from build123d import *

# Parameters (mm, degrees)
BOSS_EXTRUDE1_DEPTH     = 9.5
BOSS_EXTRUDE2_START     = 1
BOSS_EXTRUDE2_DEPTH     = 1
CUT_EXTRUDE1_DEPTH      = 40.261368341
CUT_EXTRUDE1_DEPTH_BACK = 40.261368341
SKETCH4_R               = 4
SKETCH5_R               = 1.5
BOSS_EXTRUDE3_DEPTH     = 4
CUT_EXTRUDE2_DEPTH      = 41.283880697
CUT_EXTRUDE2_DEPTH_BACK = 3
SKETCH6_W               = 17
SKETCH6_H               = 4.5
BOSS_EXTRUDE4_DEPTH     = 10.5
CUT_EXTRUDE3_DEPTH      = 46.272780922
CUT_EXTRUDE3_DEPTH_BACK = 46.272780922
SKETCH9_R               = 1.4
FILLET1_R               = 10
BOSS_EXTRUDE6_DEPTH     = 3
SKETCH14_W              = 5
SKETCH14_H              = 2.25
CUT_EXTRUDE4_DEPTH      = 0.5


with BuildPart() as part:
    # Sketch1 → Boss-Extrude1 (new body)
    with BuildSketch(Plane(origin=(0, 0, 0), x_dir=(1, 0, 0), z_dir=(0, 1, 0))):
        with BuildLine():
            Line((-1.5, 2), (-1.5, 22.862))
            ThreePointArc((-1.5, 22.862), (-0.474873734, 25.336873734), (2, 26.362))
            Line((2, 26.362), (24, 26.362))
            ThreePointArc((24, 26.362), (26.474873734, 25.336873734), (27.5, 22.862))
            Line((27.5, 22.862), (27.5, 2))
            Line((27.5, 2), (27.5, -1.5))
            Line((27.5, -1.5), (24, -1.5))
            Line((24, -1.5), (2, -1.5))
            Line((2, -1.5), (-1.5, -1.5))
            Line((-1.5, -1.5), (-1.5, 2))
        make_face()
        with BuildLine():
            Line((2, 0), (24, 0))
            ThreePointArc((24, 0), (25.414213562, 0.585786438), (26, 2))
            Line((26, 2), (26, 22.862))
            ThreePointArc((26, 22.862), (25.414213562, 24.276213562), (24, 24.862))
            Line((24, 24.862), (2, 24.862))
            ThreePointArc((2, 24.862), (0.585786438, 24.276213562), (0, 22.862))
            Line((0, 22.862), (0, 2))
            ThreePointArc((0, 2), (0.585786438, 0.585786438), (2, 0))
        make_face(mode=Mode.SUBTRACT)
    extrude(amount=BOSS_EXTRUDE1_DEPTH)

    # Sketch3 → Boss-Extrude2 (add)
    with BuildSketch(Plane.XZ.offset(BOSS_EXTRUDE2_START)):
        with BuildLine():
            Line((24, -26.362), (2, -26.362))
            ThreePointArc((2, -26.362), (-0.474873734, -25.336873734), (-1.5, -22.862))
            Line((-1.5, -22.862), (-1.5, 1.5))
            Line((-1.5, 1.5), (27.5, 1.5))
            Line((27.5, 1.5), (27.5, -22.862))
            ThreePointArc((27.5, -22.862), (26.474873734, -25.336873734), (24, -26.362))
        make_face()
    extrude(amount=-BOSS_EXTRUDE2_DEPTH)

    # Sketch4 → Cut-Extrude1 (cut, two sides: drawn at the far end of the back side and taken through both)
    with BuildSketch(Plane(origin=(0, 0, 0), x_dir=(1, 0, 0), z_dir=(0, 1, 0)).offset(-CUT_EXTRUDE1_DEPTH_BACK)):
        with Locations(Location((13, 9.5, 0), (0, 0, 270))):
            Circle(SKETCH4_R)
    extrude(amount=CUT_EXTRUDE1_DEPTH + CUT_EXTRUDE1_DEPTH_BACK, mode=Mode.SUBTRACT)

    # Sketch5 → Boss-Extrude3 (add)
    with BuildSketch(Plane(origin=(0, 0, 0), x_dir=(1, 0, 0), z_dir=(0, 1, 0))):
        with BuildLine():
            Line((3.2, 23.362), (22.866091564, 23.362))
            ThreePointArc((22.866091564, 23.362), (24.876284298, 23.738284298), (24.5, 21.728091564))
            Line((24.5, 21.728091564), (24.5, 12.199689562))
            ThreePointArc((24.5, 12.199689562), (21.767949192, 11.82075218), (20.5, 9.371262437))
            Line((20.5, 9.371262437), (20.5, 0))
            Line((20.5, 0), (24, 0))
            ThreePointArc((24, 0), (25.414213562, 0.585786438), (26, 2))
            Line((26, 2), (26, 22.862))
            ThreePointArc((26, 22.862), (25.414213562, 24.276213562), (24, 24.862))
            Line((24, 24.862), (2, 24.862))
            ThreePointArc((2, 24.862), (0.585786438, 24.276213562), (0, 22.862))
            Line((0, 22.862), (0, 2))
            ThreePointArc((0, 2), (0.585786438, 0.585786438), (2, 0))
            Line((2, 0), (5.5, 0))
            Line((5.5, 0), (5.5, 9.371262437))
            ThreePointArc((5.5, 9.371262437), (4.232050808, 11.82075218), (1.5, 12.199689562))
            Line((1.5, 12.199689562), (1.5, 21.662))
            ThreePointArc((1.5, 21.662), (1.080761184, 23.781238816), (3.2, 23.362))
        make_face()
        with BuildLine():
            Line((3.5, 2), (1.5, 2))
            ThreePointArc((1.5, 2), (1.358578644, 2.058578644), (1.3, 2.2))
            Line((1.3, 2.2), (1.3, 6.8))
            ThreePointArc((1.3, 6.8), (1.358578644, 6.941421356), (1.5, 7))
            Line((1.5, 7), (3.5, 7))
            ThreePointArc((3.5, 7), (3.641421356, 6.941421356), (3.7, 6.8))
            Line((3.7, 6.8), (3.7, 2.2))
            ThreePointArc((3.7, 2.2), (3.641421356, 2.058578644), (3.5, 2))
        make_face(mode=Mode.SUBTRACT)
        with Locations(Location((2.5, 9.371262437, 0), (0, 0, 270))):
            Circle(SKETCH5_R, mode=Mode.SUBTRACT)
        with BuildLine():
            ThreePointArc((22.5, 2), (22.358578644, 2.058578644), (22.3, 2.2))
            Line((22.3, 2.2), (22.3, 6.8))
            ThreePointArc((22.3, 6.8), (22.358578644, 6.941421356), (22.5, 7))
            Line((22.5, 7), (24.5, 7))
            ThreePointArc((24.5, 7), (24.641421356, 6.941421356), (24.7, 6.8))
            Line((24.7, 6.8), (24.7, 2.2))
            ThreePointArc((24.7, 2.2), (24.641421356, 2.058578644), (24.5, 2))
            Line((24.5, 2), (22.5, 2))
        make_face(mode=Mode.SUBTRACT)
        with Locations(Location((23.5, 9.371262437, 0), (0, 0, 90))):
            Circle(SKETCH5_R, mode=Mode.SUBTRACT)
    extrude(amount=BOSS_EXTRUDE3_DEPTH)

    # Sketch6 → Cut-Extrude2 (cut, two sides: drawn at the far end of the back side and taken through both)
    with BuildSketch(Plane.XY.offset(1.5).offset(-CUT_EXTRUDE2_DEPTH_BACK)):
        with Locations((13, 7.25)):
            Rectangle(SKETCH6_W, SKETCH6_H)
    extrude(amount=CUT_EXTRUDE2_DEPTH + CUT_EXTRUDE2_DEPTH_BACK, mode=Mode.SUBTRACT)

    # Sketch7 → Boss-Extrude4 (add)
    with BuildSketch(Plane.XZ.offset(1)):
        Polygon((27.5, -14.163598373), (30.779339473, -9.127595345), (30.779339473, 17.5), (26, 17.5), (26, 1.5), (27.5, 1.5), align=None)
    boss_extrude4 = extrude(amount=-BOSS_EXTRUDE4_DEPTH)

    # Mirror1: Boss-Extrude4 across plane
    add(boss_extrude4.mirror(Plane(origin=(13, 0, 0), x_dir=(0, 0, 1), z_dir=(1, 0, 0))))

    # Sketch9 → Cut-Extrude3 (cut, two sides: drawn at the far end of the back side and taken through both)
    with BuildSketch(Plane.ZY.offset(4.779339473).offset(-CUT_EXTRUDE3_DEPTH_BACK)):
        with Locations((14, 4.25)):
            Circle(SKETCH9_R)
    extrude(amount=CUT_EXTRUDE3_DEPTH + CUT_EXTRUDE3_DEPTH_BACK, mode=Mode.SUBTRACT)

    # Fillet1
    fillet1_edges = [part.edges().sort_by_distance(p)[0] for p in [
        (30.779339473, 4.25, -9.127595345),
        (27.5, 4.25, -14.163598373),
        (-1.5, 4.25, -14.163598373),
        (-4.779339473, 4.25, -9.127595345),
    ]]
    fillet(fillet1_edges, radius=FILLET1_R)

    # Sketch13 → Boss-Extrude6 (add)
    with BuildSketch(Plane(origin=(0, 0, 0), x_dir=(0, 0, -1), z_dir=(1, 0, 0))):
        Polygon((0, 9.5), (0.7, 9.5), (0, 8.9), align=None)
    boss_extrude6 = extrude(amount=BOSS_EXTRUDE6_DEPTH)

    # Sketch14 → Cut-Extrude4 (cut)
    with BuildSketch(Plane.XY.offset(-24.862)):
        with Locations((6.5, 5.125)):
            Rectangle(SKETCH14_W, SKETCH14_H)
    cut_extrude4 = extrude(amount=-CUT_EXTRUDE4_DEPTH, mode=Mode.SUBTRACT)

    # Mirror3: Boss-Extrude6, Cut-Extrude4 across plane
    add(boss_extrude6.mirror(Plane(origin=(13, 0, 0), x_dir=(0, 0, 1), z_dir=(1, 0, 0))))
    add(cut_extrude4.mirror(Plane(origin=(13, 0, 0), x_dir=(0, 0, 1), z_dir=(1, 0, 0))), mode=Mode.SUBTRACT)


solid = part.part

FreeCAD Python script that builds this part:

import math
import FreeCAD as App
import Part
import Sketcher
from FreeCAD import Vector
Q = App.Units.Quantity


def edges_at(feature, points):
    """Names of the edges that pass closest to the given points."""
    edges = feature.Shape.Edges
    near = lambda p: min(range(len(edges)), key=lambda i: edges[i].distToShape(Part.Vertex(*p))[0])
    return sorted({f"Edge{near(p) + 1}" for p in points})


def add_polygon(sketch, points):
    """Adds a closed chain of lines whose ends are joined by coincident constraints."""
    first, n = sketch.GeometryCount, len(points)
    for a, b in zip(points, points[1:] + points[:1]):
        sketch.addGeometry(Part.LineSegment(App.Vector(*a, 0), App.Vector(*b, 0)), False)
    for i in range(n):
        sketch.addConstraint(Sketcher.Constraint("Coincident", first + i, 2, first + (i + 1) % n, 1))

doc = App.newDocument("Part")
params = doc.addObject("Spreadsheet::Sheet", "Params")
for row, (alias, value) in enumerate([
    ("sketch1_radius", "2 mm"),
    ("sketch1_radius2", "3.5 mm"),
    ("sketch1_width", "29 mm"),
    ("pad1_length", "9.5 mm"),
    ("sketch2_radius", "3.5 mm"),
    ("sketch2_width", "22 mm"),
    ("pad2_length", "1 mm"),
    ("sketch3_diameter", "8 mm"),
    ("sketch4_diameter", "3 mm"),
    ("sketch4_radius", "3 mm"),
    ("sketch4_radius2", "2 mm"),
    ("sketch4_radius3", "1.3 mm"),
    ("sketch4_radius4", "0.2 mm"),
    ("pad3_length", "4 mm"),
    ("sketch5_width", "17 mm"),
    ("sketch5_height", "4.5 mm"),
    ("pocket2_length", "41.283881 mm"),
    ("pocket2_length2", "3 mm"),
    ("sketch6_height", "16 mm"),
    ("sketch6_width", "1.5 mm"),
    ("pad4_length", "10.5 mm"),
    ("sketch7_diameter", "2.8 mm"),
    ("fillet_radius", "10 mm"),
    ("sketch8_width", "0.6 mm"),
    ("sketch8_height", "0.7 mm"),
    ("pad5_length", "3 mm"),
    ("sketch9_width", "5 mm"),
    ("sketch9_height", "2.25 mm"),
    ("pocket4_length", "0.5 mm"),
], start=1):
    params.set(f"A{row}", alias)
    params.set(f"B{row}", "=" + value)
    params.setAlias(f"B{row}", alias)

body = doc.addObject("PartDesign::Body", "Body")

sketch1 = doc.addObject("Sketcher::SketchObject", "Sketch")
body.addObject(sketch1)
sketch1.AttachmentSupport = (doc.XZ_Plane, [""])
sketch1.MapMode = "FlatFace"
sketch1.addGeometry(Part.ArcOfCircle(Part.Circle(Vector(2, -22.862, 0), Vector(0, 0, 1), 3.5), math.radians(-180), math.radians(-90)), False)
sketch1.addGeometry(Part.LineSegment(Vector(-1.5, -22.862, 0), Vector(-1.5, 1.5, 0)), False)
sketch1.addGeometry(Part.LineSegment(Vector(-1.5, 1.5, 0), Vector(27.5, 1.5, 0)), False)
sketch1.addGeometry(Part.LineSegment(Vector(27.5, 1.5, 0), Vector(27.5, -22.862, 0)), False)
sketch1.addGeometry(Part.ArcOfCircle(Part.Circle(Vector(24, -22.862, 0), Vector(0, 0, 1), 3.5), math.radians(-90), math.radians(0)), False)
sketch1.addGeometry(Part.LineSegment(Vector(24, -26.362, 0), Vector(2, -26.362, 0)), False)
sketch1.addGeometry(Part.ArcOfCircle(Part.Circle(Vector(2, -2, 0), Vector(0, 0, 1), 2), math.radians(90), math.radians(180)), False)
sketch1.addGeometry(Part.LineSegment(Vector(0, -2, 0), Vector(0, -22.862, 0)), False)
sketch1.addGeometry(Part.ArcOfCircle(Part.Circle(Vector(2, -22.862, 0), Vector(0, 0, 1), 2), math.radians(-180), math.radians(-90)), False)
sketch1.addGeometry(Part.LineSegment(Vector(2, -24.862, 0), Vector(24, -24.862, 0)), False)
sketch1.addGeometry(Part.ArcOfCircle(Part.Circle(Vector(24, -22.862, 0), Vector(0, 0, 1), 2), math.radians(-90), math.radians(0)), False)
sketch1.addGeometry(Part.LineSegment(Vector(26, -22.862, 0), Vector(26, -2, 0)), False)
sketch1.addGeometry(Part.ArcOfCircle(Part.Circle(Vector(24, -2, 0), Vector(0, 0, 1), 2), math.radians(0), math.radians(90)), False)
sketch1.addGeometry(Part.LineSegment(Vector(24, 0, 0), Vector(2, 0, 0)), False)
sketch1.addConstraint(Sketcher.Constraint("Tangent", 0, 1, 1, 1))
sketch1.addConstraint(Sketcher.Constraint("Coincident", 1, 2, 2, 1))
sketch1.addConstraint(Sketcher.Constraint("Coincident", 2, 2, 3, 1))
sketch1.addConstraint(Sketcher.Constraint("Tangent", 3, 2, 4, 2))
sketch1.addConstraint(Sketcher.Constraint("Tangent", 4, 1, 5, 1))
sketch1.addConstraint(Sketcher.Constraint("Tangent", 5, 2, 0, 2))
sketch1.addConstraint(Sketcher.Constraint("Tangent", 6, 2, 7, 1))
sketch1.addConstraint(Sketcher.Constraint("Tangent", 7, 2, 8, 1))
sketch1.addConstraint(Sketcher.Constraint("Tangent", 8, 2, 9, 1))
sketch1.addConstraint(Sketcher.Constraint("Tangent", 9, 2, 10, 1))
sketch1.addConstraint(Sketcher.Constraint("Tangent", 10, 2, 11, 1))
sketch1.addConstraint(Sketcher.Constraint("Tangent", 11, 2, 12, 1))
sketch1.addConstraint(Sketcher.Constraint("Tangent", 12, 2, 13, 1))
sketch1.addConstraint(Sketcher.Constraint("Tangent", 13, 2, 6, 1))
sketch1.addConstraint(Sketcher.Constraint("Vertical", 1))
sketch1.addConstraint(Sketcher.Constraint("Horizontal", 2))
sketch1.addConstraint(Sketcher.Constraint("Vertical", 3))
sketch1.addConstraint(Sketcher.Constraint("Horizontal", 5))
sketch1.addConstraint(Sketcher.Constraint("Vertical", 7))
sketch1.addConstraint(Sketcher.Constraint("Horizontal", 9))
sketch1.addConstraint(Sketcher.Constraint("Vertical", 11))
sketch1.addConstraint(Sketcher.Constraint("Horizontal", 13))
sketch1.addConstraint(Sketcher.Constraint("Coincident", 8, 3, 0, 3))
sketch1.addConstraint(Sketcher.Constraint("Coincident", 10, 3, 4, 3))
sketch1.addConstraint(Sketcher.Constraint("Equal", 0, 4))
sketch1.addConstraint(Sketcher.Constraint("Equal", 6, 8))
sketch1.addConstraint(Sketcher.Constraint("Equal", 10, 12))
sketch1.addConstraint(Sketcher.Constraint("PointOnObject", 6, 2, -2))
sketch1.addConstraint(Sketcher.Constraint("PointOnObject", 12, 2, -1))
sketch1.addConstraint(Sketcher.Constraint("Radius", 6, Q("2 mm")))
sketch1.addConstraint(Sketcher.Constraint("Radius", 0, Q("3.5 mm")))
sketch1.addConstraint(Sketcher.Constraint("DistanceX", 2, 1, 2, 2, Q("29 mm")))
sketch1.addConstraint(Sketcher.Constraint("DistanceY", -1, 1, 1, 2, Q("1.5 mm")))
sketch1.addConstraint(Sketcher.Constraint("DistanceY", 1, 1, 1, 2, Q("24.362 mm")))
sketch1.setExpression("Constraints[29]", "Params.sketch1_radius")
sketch1.setExpression("Constraints[30]", "Params.sketch1_radius2")
sketch1.setExpression("Constraints[31]", "Params.sketch1_width")
pad1 = doc.addObject("PartDesign::Pad", "Pad")
body.addObject(pad1)
pad1.Profile = sketch1
pad1.setExpression("Length", "Params.pad1_length")
pad1.Reversed = True

sketch2 = doc.addObject("Sketcher::SketchObject", "Sketch001")
body.addObject(sketch2)
sketch2.AttachmentSupport = (doc.XZ_Plane, [""])
sketch2.MapMode = "FlatFace"
sketch2.AttachmentOffset = App.Placement(Vector(0, 0, 1), App.Rotation())
sketch2.addGeometry(Part.LineSegment(Vector(2, -26.362, 0), Vector(24, -26.362, 0)), False)
sketch2.addGeometry(Part.ArcOfCircle(Part.Circle(Vector(24, -22.862, 0), Vector(0, 0, 1), 3.5), math.radians(-90), math.radians(0)), False)
sketch2.addGeometry(Part.LineSegment(Vector(27.5, -22.862, 0), Vector(27.5, 1.5, 0)), False)
sketch2.addGeometry(Part.LineSegment(Vector(27.5, 1.5, 0), Vector(-1.5, 1.5, 0)), False)
sketch2.addGeometry(Part.LineSegment(Vector(-1.5, 1.5, 0), Vector(-1.5, -22.862, 0)), False)
sketch2.addGeometry(Part.ArcOfCircle(Part.Circle(Vector(2, -22.862, 0), Vector(0, 0, 1), 3.5), math.radians(-180), math.radians(-90)), False)
sketch2.addConstraint(Sketcher.Constraint("Tangent", 0, 2, 1, 1))
sketch2.addConstraint(Sketcher.Constraint("Tangent", 1, 2, 2, 1))
sketch2.addConstraint(Sketcher.Constraint("Coincident", 2, 2, 3, 1))
sketch2.addConstraint(Sketcher.Constraint("Coincident", 3, 2, 4, 1))
sketch2.addConstraint(Sketcher.Constraint("Tangent", 4, 2, 5, 1))
sketch2.addConstraint(Sketcher.Constraint("Tangent", 5, 2, 0, 1))
sketch2.addConstraint(Sketcher.Constraint("Horizontal", 0))
sketch2.addConstraint(Sketcher.Constraint("Vertical", 2))
sketch2.addConstraint(Sketcher.Constraint("Horizontal", 3))
sketch2.addConstraint(Sketcher.Constraint("Vertical", 4))
sketch2.addConstraint(Sketcher.Constraint("Equal", 1, 5))
sketch2.addConstraint(Sketcher.Constraint("Radius", 1, Q("3.5 mm")))
sketch2.addConstraint(Sketcher.Constraint("DistanceX", 0, 1, 0, 2, Q("22 mm")))
sketch2.addConstraint(Sketcher.Constraint("DistanceX", -1, 1, 1, 3, Q("24 mm")))
sketch2.addConstraint(Sketcher.Constraint("DistanceY", -1, 1, 2, 2, Q("1.5 mm")))
sketch2.addConstraint(Sketcher.Constraint("DistanceY", 2, 1, 2, 2, Q("24.362 mm")))
sketch2.setExpression("Constraints[11]", "Params.sketch2_radius")
sketch2.setExpression("Constraints[12]", "Params.sketch2_width")
pad2 = doc.addObject("PartDesign::Pad", "Pad001")
body.addObject(pad2)
pad2.Profile = sketch2
pad2.setExpression("Length", "Params.pad2_length")
pad2.Reversed = True

sketch3 = doc.addObject("Sketcher::SketchObject", "Sketch002")
body.addObject(sketch3)
sketch3.AttachmentSupport = (doc.XZ_Plane, [""])
sketch3.MapMode = "FlatFace"
sketch3.addGeometry(Part.Circle(Vector(13, -9.5, 0), Vector(0, 0, 1), 4), False)
sketch3.addConstraint(Sketcher.Constraint("Diameter", 0, Q("8 mm")))
sketch3.addConstraint(Sketcher.Constraint("DistanceX", -1, 1, 0, 3, Q("13 mm")))
sketch3.addConstraint(Sketcher.Constraint("DistanceY", 0, 3, -1, 1, Q("9.5 mm")))
sketch3.setExpression("Constraints[0]", "Params.sketch3_diameter")
pocket1 = doc.addObject("PartDesign::Pocket", "Pocket")
body.addObject(pocket1)
pocket1.Profile = sketch3
pocket1.Type = "ThroughAll"
pocket1.Midplane = True

sketch4 = doc.addObject("Sketcher::SketchObject", "Sketch003")
body.addObject(sketch4)
sketch4.AttachmentSupport = (doc.XZ_Plane, [""])
sketch4.MapMode = "FlatFace"
sketch4.addGeometry(Part.LineSegment(Vector(3.2, -23.362, 0), Vector(22.866092, -23.362, 0)), False)
sketch4.addGeometry(Part.ArcOfCircle(Part.Circle(Vector(24, -22.862, 0), Vector(0, 0, 1), 1.239253), math.radians(-156.204789), math.radians(66.204789)), False)
sketch4.addGeometry(Part.LineSegment(Vector(24.5, -21.728092, 0), Vector(24.5, -12.19969, 0)), False)
sketch4.addGeometry(Part.ArcOfCircle(Part.Circle(Vector(23.5, -9.371262, 0), Vector(0, 0, 1), 3), math.radians(180), math.radians(289.471221)), False)
sketch4.addGeometry(Part.LineSegment(Vector(20.5, -9.371262, 0), Vector(20.5, 0, 0)), False)
sketch4.addGeometry(Part.LineSegment(Vector(20.5, 0, 0), Vector(24, 0, 0)), False)
sketch4.addGeometry(Part.ArcOfCircle(Part.Circle(Vector(24, -2, 0), Vector(0, 0, 1), 2), math.radians(0), math.radians(90)), False)
sketch4.addGeometry(Part.LineSegment(Vector(26, -2, 0), Vector(26, -22.862, 0)), False)
sketch4.addGeometry(Part.ArcOfCircle(Part.Circle(Vector(24, -22.862, 0), Vector(0, 0, 1), 2), math.radians(-90), math.radians(0)), False)
sketch4.addGeometry(Part.LineSegment(Vector(24, -24.862, 0), Vector(2, -24.862, 0)), False)
sketch4.addGeometry(Part.ArcOfCircle(Part.Circle(Vector(2, -22.862, 0), Vector(0, 0, 1), 2), math.radians(-180), math.radians(-90)), False)
sketch4.addGeometry(Part.LineSegment(Vector(0, -22.862, 0), Vector(0, -2, 0)), False)
sketch4.addGeometry(Part.ArcOfCircle(Part.Circle(Vector(2, -2, 0), Vector(0, 0, 1), 2), math.radians(90), math.radians(180)), False)
sketch4.addGeometry(Part.LineSegment(Vector(2, 0, 0), Vector(5.5, 0, 0)), False)
sketch4.addGeometry(Part.LineSegment(Vector(5.5, 0, 0), Vector(5.5, -9.371262, 0)), False)
sketch4.addGeometry(Part.ArcOfCircle(Part.Circle(Vector(2.5, -9.371262, 0), Vector(0, 0, 1), 3), math.radians(-109.471221), math.radians(0)), False)
sketch4.addGeometry(Part.LineSegment(Vector(1.5, -12.19969, 0), Vector(1.5, -21.662, 0)), False)
sketch4.addGeometry(Part.ArcOfCircle(Part.Circle(Vector(2, -22.862, 0), Vector(0, 0, 1), 1.3), math.radians(112.619865), math.radians(337.380135)), False)
sketch4.addGeometry(Part.ArcOfCircle(Part.Circle(Vector(3.5, -2.2, 0), Vector(0, 0, 1), 0.2), math.radians(0), math.radians(90)), False)
sketch4.addGeometry(Part.LineSegment(Vector(3.5, -2, 0), Vector(1.5, -2, 0)), False)
sketch4.addGeometry(Part.ArcOfCircle(Part.Circle(Vector(1.5, -2.2, 0), Vector(0, 0, 1), 0.2), math.radians(90), math.radians(180)), False)
sketch4.addGeometry(Part.LineSegment(Vector(1.3, -2.2, 0), Vector(1.3, -6.8, 0)), False)
sketch4.addGeometry(Part.ArcOfCircle(Part.Circle(Vector(1.5, -6.8, 0), Vector(0, 0, 1), 0.2), math.radians(-180), math.radians(-90)), False)
sketch4.addGeometry(Part.LineSegment(Vector(1.5, -7, 0), Vector(3.5, -7, 0)), False)
sketch4.addGeometry(Part.ArcOfCircle(Part.Circle(Vector(3.5, -6.8, 0), Vector(0, 0, 1), 0.2), math.radians(-90), math.radians(0)), False)
sketch4.addGeometry(Part.LineSegment(Vector(3.7, -6.8, 0), Vector(3.7, -2.2, 0)), False)
sketch4.addGeometry(Part.LineSegment(Vector(24.5, -2, 0), Vector(22.5, -2, 0)), False)
sketch4.addGeometry(Part.ArcOfCircle(Part.Circle(Vector(22.5, -2.2, 0), Vector(0, 0, 1), 0.2), math.radians(90), math.radians(180)), False)
sketch4.addGeometry(Part.LineSegment(Vector(22.3, -2.2, 0), Vector(22.3, -6.8, 0)), False)
sketch4.addGeometry(Part.ArcOfCircle(Part.Circle(Vector(22.5, -6.8, 0), Vector(0, 0, 1), 0.2), math.radians(-180), math.radians(-90)), False)
sketch4.addGeometry(Part.LineSegment(Vector(22.5, -7, 0), Vector(24.5, -7, 0)), False)
sketch4.addGeometry(Part.ArcOfCircle(Part.Circle(Vector(24.5, -6.8, 0), Vector(0, 0, 1), 0.2), math.radians(-90), math.radians(0)), False)
sketch4.addGeometry(Part.LineSegment(Vector(24.7, -6.8, 0), Vector(24.7, -2.2, 0)), False)
sketch4.addGeometry(Part.ArcOfCircle(Part.Circle(Vector(24.5, -2.2, 0), Vector(0, 0, 1), 0.2), math.radians(0), math.radians(90)), False)
sketch4.addGeometry(Part.Circle(Vector(2.5, -9.371262, 0), Vector(0, 0, 1), 1.5), False)
sketch4.addGeometry(Part.Circle(Vector(23.5, -9.371262, 0), Vector(0, 0, 1), 1.5), False)
sketch4.addConstraint(Sketcher.Constraint("Coincident", 0, 2, 1, 1))
sketch4.addConstraint(Sketcher.Constraint("Coincident", 1, 2, 2, 1))
sketch4.addConstraint(Sketcher.Constraint("Coincident", 2, 2, 3, 2))
sketch4.addConstraint(Sketcher.Constraint("Tangent", 3, 1, 4, 1))
sketch4.addConstraint(Sketcher.Constraint("Coincident", 4, 2, 5, 1))
sketch4.addConstraint(Sketcher.Constraint("Tangent", 5, 2, 6, 2))
sketch4.addConstraint(Sketcher.Constraint("Tangent", 6, 1, 7, 1))
sketch4.addConstraint(Sketcher.Constraint("Tangent", 7, 2, 8, 2))
sketch4.addConstraint(Sketcher.Constraint("Tangent", 8, 1, 9, 1))
sketch4.addConstraint(Sketcher.Constraint("Tangent", 9, 2, 10, 2))
sketch4.addConstraint(Sketcher.Constraint("Tangent", 10, 1, 11, 1))
sketch4.addConstraint(Sketcher.Constraint("Tangent", 11, 2, 12, 2))
sketch4.addConstraint(Sketcher.Constraint("Tangent", 12, 1, 13, 1))
sketch4.addConstraint(Sketcher.Constraint("Coincident", 13, 2, 14, 1))
sketch4.addConstraint(Sketcher.Constraint("Tangent", 14, 2, 15, 2))
sketch4.addConstraint(Sketcher.Constraint("Coincident", 15, 1, 16, 1))
sketch4.addConstraint(Sketcher.Constraint("Coincident", 16, 2, 17, 1))
sketch4.addConstraint(Sketcher.Constraint("Coincident", 17, 2, 0, 1))
sketch4.addConstraint(Sketcher.Constraint("Tangent", 18, 2, 19, 1))
sketch4.addConstraint(Sketcher.Constraint("Tangent", 19, 2, 20, 1))
sketch4.addConstraint(Sketcher.Constraint("Tangent", 20, 2, 21, 1))
sketch4.addConstraint(Sketcher.Constraint("Tangent", 21, 2, 22, 1))
sketch4.addConstraint(Sketcher.Constraint("Tangent", 22, 2, 23, 1))
sketch4.addConstraint(Sketcher.Constraint("Tangent", 23, 2, 24, 1))
sketch4.addConstraint(Sketcher.Constraint("Tangent", 24, 2, 25, 1))
sketch4.addConstraint(Sketcher.Constraint("Tangent", 25, 2, 18, 1))
sketch4.addConstraint(Sketcher.Constraint("Tangent", 26, 2, 27, 1))
sketch4.addConstraint(Sketcher.Constraint("Tangent", 27, 2, 28, 1))
sketch4.addConstraint(Sketcher.Constraint("Tangent", 28, 2, 29, 1))
sketch4.addConstraint(Sketcher.Constraint("Tangent", 29, 2, 30, 1))
sketch4.addConstraint(Sketcher.Constraint("Tangent", 30, 2, 31, 1))
sketch4.addConstraint(Sketcher.Constraint("Tangent", 31, 2, 32, 1))
sketch4.addConstraint(Sketcher.Constraint("Tangent", 32, 2, 33, 1))
sketch4.addConstraint(Sketcher.Constraint("Tangent", 33, 2, 26, 1))
sketch4.addConstraint(Sketcher.Constraint("Horizontal", 0))
sketch4.addConstraint(Sketcher.Constraint("Vertical", 2))
sketch4.addConstraint(Sketcher.Constraint("Vertical", 4))
sketch4.addConstraint(Sketcher.Constraint("Horizontal", 5))
sketch4.addConstraint(Sketcher.Constraint("Vertical", 7))
sketch4.addConstraint(Sketcher.Constraint("Horizontal", 9))
sketch4.addConstraint(Sketcher.Constraint("Vertical", 11))
sketch4.addConstraint(Sketcher.Constraint("Horizontal", 13))
sketch4.addConstraint(Sketcher.Constraint("Vertical", 14))
sketch4.addConstraint(Sketcher.Constraint("Vertical", 16))
sketch4.addConstraint(Sketcher.Constraint("Horizontal", 19))
sketch4.addConstraint(Sketcher.Constraint("Vertical", 21))
sketch4.addConstraint(Sketcher.Constraint("Horizontal", 23))
sketch4.addConstraint(Sketcher.Constraint("Vertical", 25))
sketch4.addConstraint(Sketcher.Constraint("Horizontal", 26))
sketch4.addConstraint(Sketcher.Constraint("Vertical", 28))
sketch4.addConstraint(Sketcher.Constraint("Horizontal", 30))
sketch4.addConstraint(Sketcher.Constraint("Vertical", 32))
sketch4.addConstraint(Sketcher.Constraint("Coincident", 8, 3, 1, 3))
sketch4.addConstraint(Sketcher.Constraint("Coincident", 17, 3, 10, 3))
sketch4.addConstraint(Sketcher.Constraint("Coincident", 34, 3, 15, 3))
sketch4.addConstraint(Sketcher.Constraint("Coincident", 35, 3, 3, 3))
sketch4.addConstraint(Sketcher.Constraint("Equal", 6, 8))
sketch4.addConstraint(Sketcher.Constraint("Equal", 8, 10))
sketch4.addConstraint(Sketcher.Constraint("Equal", 10, 12))
sketch4.addConstraint(Sketcher.Constraint("Equal", 3, 15))
sketch4.addConstraint(Sketcher.Constraint("Equal", 18, 20))
sketch4.addConstraint(Sketcher.Constraint("Equal", 20, 22))
sketch4.addConstraint(Sketcher.Constraint("Equal", 22, 24))
sketch4.addConstraint(Sketcher.Constraint("Equal", 24, 27))
sketch4.addConstraint(Sketcher.Constraint("Equal", 27, 29))
sketch4.addConstraint(Sketcher.Constraint("Equal", 29, 31))
sketch4.addConstraint(Sketcher.Constraint("Equal", 31, 33))
sketch4.addConstraint(Sketcher.Constraint("Equal", 34, 35))
sketch4.addConstraint(Sketcher.Constraint("PointOnObject", 4, 2, -1))
sketch4.addConstraint(Sketcher.Constraint("PointOnObject", 10, 1, -2))
sketch4.addConstraint(Sketcher.Constraint("PointOnObject", 12, 1, -1))
sketch4.addConstraint(Sketcher.Constraint("Horizontal", 3, 3, 15, 3))
sketch4.addConstraint(Sketcher.Constraint("Horizontal", 20, 3, 27, 3))
sketch4.addConstraint(Sketcher.Constraint("Horizontal", 24, 3, 29, 3))
sketch4.addConstraint(Sketcher.Constraint("Horizontal", 2, 2, 15, 1))
sketch4.addConstraint(Sketcher.Constraint("Horizontal", 11, 2, 18, 2))
sketch4.addConstraint(Sketcher.Constraint("Vertical", 33, 3, 1, 2))
sketch4.addConstraint(Sketcher.Constraint("Vertical", 22, 3, 15, 1))
sketch4.addConstraint(Sketcher.Constraint("Equal", 5, 13))
sketch4.addConstraint(Sketcher.Constraint("Equal", 23, 26))
sketch4.addConstraint(Sketcher.Constraint("Diameter", 34, Q("3 mm")))
sketch4.addConstraint(Sketcher.Constraint("Radius", 3, Q("3 mm")))
sketch4.addConstraint(Sketcher.Constraint("Radius", 6, Q("2 mm")))
sketch4.addConstraint(Sketcher.Constraint("Radius", 17, Q("1.3 mm")))
sketch4.addConstraint(Sketcher.Constraint("Radius", 18, Q("0.2 mm")))
sketch4.addConstraint(Sketcher.Constraint("DistanceX", 9, 2, 9, 1, Q("22 mm")))
sketch4.addConstraint(Sketcher.Constraint("DistanceX", 19, 2, 19, 1, Q("2 mm")))
sketch4.addConstraint(Sketcher.Constraint("DistanceX", 5, 1, 5, 2, Q("3.5 mm")))
sketch4.addConstraint(Sketcher.Constraint("DistanceY", 21, 2, 21, 1, Q("4.6 mm")))
sketch4.addConstraint(Sketcher.Constraint("DistanceX", 15, 3, 18, 3, Q("1 mm")))
sketch4.addConstraint(Sketcher.Constraint("DistanceX", -1, 1, 17, 2, Q("3.2 mm")))
sketch4.addConstraint(Sketcher.Constraint("DistanceY", 7, 2, 7, 1, Q("20.862 mm")))
sketch4.addConstraint(Sketcher.Constraint("Radius", 1, Q("1.239253 mm")))
sketch4.addConstraint(Sketcher.Constraint("DistanceY", 16, 2, 16, 1, Q("9.46231 mm")))
sketch4.setExpression("Constraints[80]", "Params.sketch4_diameter")
sketch4.setExpression("Constraints[81]", "Params.sketch4_radius")
sketch4.setExpression("Constraints[82]", "Params.sketch4_radius2")
sketch4.setExpression("Constraints[83]", "Params.sketch4_radius3")
sketch4.setExpression("Constraints[84]", "Params.sketch4_radius4")
pad3 = doc.addObject("PartDesign::Pad", "Pad002")
body.addObject(pad3)
pad3.Profile = sketch4
pad3.setExpression("Length", "Params.pad3_length")
pad3.Reversed = True

sketch5 = doc.addObject("Sketcher::SketchObject", "Sketch004")
body.addObject(sketch5)
sketch5.AttachmentSupport = (doc.XY_Plane, [""])
sketch5.MapMode = "FlatFace"
sketch5.AttachmentOffset = App.Placement(Vector(0, 0, 1.5), App.Rotation())
add_polygon(sketch5, [(4.5, 9.5), (4.5, 5), (21.5, 5), (21.5, 9.5)])
sketch5.addConstraint(Sketcher.Constraint("Vertical", 0))
sketch5.addConstraint(Sketcher.Constraint("Horizontal", 1))
sketch5.addConstraint(Sketcher.Constraint("Vertical", 2))
sketch5.addConstraint(Sketcher.Constraint("Horizontal", 3))
sketch5.addConstraint(Sketcher.Constraint("DistanceX", 1, 1, 1, 2, Q("17 mm")))
sketch5.addConstraint(Sketcher.Constraint("DistanceY", 0, 2, 0, 1, Q("4.5 mm")))
sketch5.addConstraint(Sketcher.Constraint("DistanceY", -1, 1, 0, 2, Q("5 mm")))
sketch5.addConstraint(Sketcher.Constraint("DistanceX", -1, 1, 0, 2, Q("4.5 mm")))
sketch5.setExpression("Constraints[8]", "Params.sketch5_width")
sketch5.setExpression("Constraints[9]", "Params.sketch5_height")
pocket2 = doc.addObject("PartDesign::Pocket", "Pocket001")
body.addObject(pocket2)
pocket2.Profile = sketch5
pocket2.Type = "TwoLengths"
pocket2.setExpression("Length", "Params.pocket2_length")
pocket2.setExpression("Length2", "Params.pocket2_length2")
pocket2.Reversed = True

sketch6 = doc.addObject("Sketcher::SketchObject", "Sketch005")
body.addObject(sketch6)
sketch6.AttachmentSupport = (doc.XZ_Plane, [""])
sketch6.MapMode = "FlatFace"
sketch6.AttachmentOffset = App.Placement(Vector(0, 0, 1), App.Rotation())
add_polygon(sketch6, [(27.5, -14.163598), (30.779339, -9.127595), (30.779339, 17.5), (26, 17.5), (26, 1.5), (27.5, 1.5)])
sketch6.addConstraint(Sketcher.Constraint("Vertical", 1))
sketch6.addConstraint(Sketcher.Constraint("Horizontal", 2))
sketch6.addConstraint(Sketcher.Constraint("Vertical", 3))
sketch6.addConstraint(Sketcher.Constraint("Horizontal", 4))
sketch6.addConstraint(Sketcher.Constraint("Vertical", 5))
sketch6.addConstraint(Sketcher.Constraint("DistanceY", 3, 2, 3, 1, Q("16 mm")))
sketch6.addConstraint(Sketcher.Constraint("DistanceX", 4, 1, 4, 2, Q("1.5 mm")))
sketch6.addConstraint(Sketcher.Constraint("DistanceX", -1, 1, 2, 2, Q("26 mm")))
sketch6.addConstraint(Sketcher.Constraint("DistanceY", -1, 1, 1, 2, Q("17.5 mm")))
sketch6.addConstraint(Sketcher.Constraint("DistanceY", 5, 2, 5, 1, Q("15.663598 mm")))
sketch6.addConstraint(Sketcher.Constraint("DistanceX", 2, 2, 2, 1, Q("4.779339 mm")))
sketch6.addConstraint(Sketcher.Constraint("Distance", 0, Q("6.009608 mm")))
sketch6.setExpression("Constraints[11]", "Params.sketch6_height")
sketch6.setExpression("Constraints[12]", "Params.sketch6_width")
pad4 = doc.addObject("PartDesign::Pad", "Pad003")
body.addObject(pad4)
pad4.Profile = sketch6
pad4.setExpression("Length", "Params.pad4_length")
pad4.Reversed = True
doc.recompute()

datumplane = doc.addObject("PartDesign::Plane", "DatumPlane")
body.addObject(datumplane)
datumplane.AttachmentSupport = (doc.YZ_Plane, [""])
datumplane.MapMode = "FlatFace"
datumplane.AttachmentOffset = App.Placement(Vector(0, 0, 13), App.Rotation())
mirrored = doc.addObject("PartDesign::Mirrored", "Mirrored")
body.addObject(mirrored)
mirrored.Originals = [pad4]
mirrored.MirrorPlane = (datumplane, [""])
body.Tip = mirrored

sketch7 = doc.addObject("Sketcher::SketchObject", "Sketch006")
body.addObject(sketch7)
sketch7.AttachmentSupport = (doc.YZ_Plane, [""])
sketch7.MapMode = "FlatFace"
sketch7.AttachmentOffset = App.Placement(Vector(0, 0, -4.779339), App.Rotation())
sketch7.addGeometry(Part.Circle(Vector(4.25, 14, 0), Vector(0, 0, 1), 1.4), False)
sketch7.addConstraint(Sketcher.Constraint("Diameter", 0, Q("2.8 mm")))
sketch7.addConstraint(Sketcher.Constraint("DistanceY", -1, 1, 0, 3, Q("14 mm")))
sketch7.addConstraint(Sketcher.Constraint("DistanceX", -1, 1, 0, 3, Q("4.25 mm")))
sketch7.setExpression("Constraints[0]", "Params.sketch7_diameter")
pocket3 = doc.addObject("PartDesign::Pocket", "Pocket002")
body.addObject(pocket3)
pocket3.Profile = sketch7
pocket3.Type = "ThroughAll"
pocket3.Midplane = True
doc.recompute()

fillet = doc.addObject("PartDesign::Fillet", "Fillet")
body.addObject(fillet)
fillet.Base = (pocket3, edges_at(pocket3, [
    (30.779, 4.25, -9.128),
    (27.5, 4.25, -14.164),
    (-1.5, 4.25, -14.164),
    (-4.779, 4.25, -9.128),
]))
fillet.setExpression("Radius", "Params.fillet_radius")

sketch8 = doc.addObject("Sketcher::SketchObject", "Sketch007")
body.addObject(sketch8)
sketch8.AttachmentSupport = (doc.YZ_Plane, [""])
sketch8.MapMode = "FlatFace"
add_polygon(sketch8, [(9.5, -0.7), (9.5, 0), (8.9, 0)])
sketch8.addConstraint(Sketcher.Constraint("Vertical", 0))
sketch8.addConstraint(Sketcher.Constraint("Horizontal", 1))
sketch8.addConstraint(Sketcher.Constraint("PointOnObject", 0, 2, -1))
sketch8.addConstraint(Sketcher.Constraint("DistanceX", 1, 2, 1, 1, Q("0.6 mm")))
sketch8.addConstraint(Sketcher.Constraint("DistanceY", 0, 1, 0, 2, Q("0.7 mm")))
sketch8.addConstraint(Sketcher.Constraint("DistanceX", -1, 1, 0, 2, Q("9.5 mm")))
sketch8.setExpression("Constraints[6]", "Params.sketch8_width")
sketch8.setExpression("Constraints[7]", "Params.sketch8_height")
pad5 = doc.addObject("PartDesign::Pad", "Pad004")
body.addObject(pad5)
pad5.Profile = sketch8
pad5.setExpression("Length", "Params.pad5_length")

sketch9 = doc.addObject("Sketcher::SketchObject", "Sketch008")
body.addObject(sketch9)
sketch9.AttachmentSupport = (doc.XY_Plane, [""])
sketch9.MapMode = "FlatFace"
sketch9.AttachmentOffset = App.Placement(Vector(0, 0, -24.862), App.Rotation())
add_polygon(sketch9, [(4, 6.25), (4, 4), (9, 4), (9, 6.25)])
sketch9.addConstraint(Sketcher.Constraint("Vertical", 0))
sketch9.addConstraint(Sketcher.Constraint("Horizontal", 1))
sketch9.addConstraint(Sketcher.Constraint("Vertical", 2))
sketch9.addConstraint(Sketcher.Constraint("Horizontal", 3))
sketch9.addConstraint(Sketcher.Constraint("DistanceX", 1, 1, 1, 2, Q("5 mm")))
sketch9.addConstraint(Sketcher.Constraint("DistanceX", -1, 1, 0, 2, Q("4 mm")))
sketch9.addConstraint(Sketcher.Constraint("DistanceY", -1, 1, 0, 2, Q("4 mm")))
sketch9.addConstraint(Sketcher.Constraint("DistanceY", 0, 2, 0, 1, Q("2.25 mm")))
sketch9.setExpression("Constraints[8]", "Params.sketch9_width")
sketch9.setExpression("Constraints[11]", "Params.sketch9_height")
pocket4 = doc.addObject("PartDesign::Pocket", "Pocket003")
body.addObject(pocket4)
pocket4.Profile = sketch9
pocket4.setExpression("Length", "Params.pocket4_length")
doc.recompute()

datumplane2 = doc.addObject("PartDesign::Plane", "DatumPlane001")
body.addObject(datumplane2)
datumplane2.AttachmentSupport = (doc.YZ_Plane, [""])
datumplane2.MapMode = "FlatFace"
datumplane2.AttachmentOffset = App.Placement(Vector(0, 0, 13), App.Rotation())
mirrored2 = doc.addObject("PartDesign::Mirrored", "Mirrored001")
body.addObject(mirrored2)
mirrored2.Originals = [pad5, pocket4]
mirrored2.MirrorPlane = (datumplane2, [""])
body.Tip = mirrored2

doc.recompute()
